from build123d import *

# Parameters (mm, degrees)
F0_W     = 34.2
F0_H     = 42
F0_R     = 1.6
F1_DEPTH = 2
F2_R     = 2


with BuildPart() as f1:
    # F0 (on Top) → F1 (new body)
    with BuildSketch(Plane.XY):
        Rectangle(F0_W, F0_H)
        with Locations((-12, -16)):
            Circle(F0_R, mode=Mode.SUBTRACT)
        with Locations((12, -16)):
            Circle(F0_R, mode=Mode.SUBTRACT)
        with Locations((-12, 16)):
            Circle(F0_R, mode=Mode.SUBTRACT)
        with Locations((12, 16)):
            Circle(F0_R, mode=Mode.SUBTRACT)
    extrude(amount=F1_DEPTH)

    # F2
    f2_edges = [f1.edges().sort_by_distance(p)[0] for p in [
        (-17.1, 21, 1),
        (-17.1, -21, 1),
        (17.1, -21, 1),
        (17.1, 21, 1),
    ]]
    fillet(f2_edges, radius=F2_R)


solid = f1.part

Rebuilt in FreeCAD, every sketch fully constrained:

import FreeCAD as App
import Part
import Sketcher
from FreeCAD import Vector


def edges_at(feature, points):
    """Names of the edges that pass closest to the given points."""
    edges = feature.Shape.Edges
    near = lambda p: min(range(len(edges)), key=lambda i: edges[i].distToShape(Part.Vertex(*p))[0])
    return sorted({f"Edge{near(p) + 1}" for p in points})


def add_polygon(sketch, points):
    """Adds a closed chain of lines whose ends are joined by coincident constraints."""
    first, n = sketch.GeometryCount, len(points)
    for a, b in zip(points, points[1:] + points[:1]):
        sketch.addGeometry(Part.LineSegment(App.Vector(*a, 0), App.Vector(*b, 0)), False)
    for i in range(n):
        sketch.addConstraint(Sketcher.Constraint("Coincident", first + i, 2, first + (i + 1) % n, 1))

doc = App.newDocument("Part")
body = doc.addObject("PartDesign::Body", "Body")

# Sketch on XY plane
sketch1 = body.newObject("Sketcher::SketchObject", "Sketch")
sketch1.AttachmentSupport = (doc.getObject("XY_Plane"), [""])
sketch1.MapMode = "FlatFace"
add_polygon(sketch1, [(-17.1, 21), (-17.1, -21), (17.1, -21), (17.1, 21)])  # lines 0-3
sketch1.addGeometry(Part.Circle(Vector(-12, -16, 0), Vector(0, 0, 1), 1.6), False)  # 4
sketch1.addGeometry(Part.Circle(Vector(12, -16, 0), Vector(0, 0, 1), 1.6), False)  # 5
sketch1.addGeometry(Part.Circle(Vector(-12, 16, 0), Vector(0, 0, 1), 1.6), False)  # 6
sketch1.addGeometry(Part.Circle(Vector(12, 16, 0), Vector(0, 0, 1), 1.6), False)  # 7
sketch1.addConstraint([
    Sketcher.Constraint("Vertical", 0),
    Sketcher.Constraint("Horizontal", 1),
    Sketcher.Constraint("Vertical", 2),
    Sketcher.Constraint("Horizontal", 3),
    Sketcher.Constraint("Equal", 4, 5),
    Sketcher.Constraint("Equal", 5, 6),
    Sketcher.Constraint("Equal", 6, 7),
    Sketcher.Constraint("Symmetric", 5, 3, 6, 3, -1, 1),
    Sketcher.Constraint("Symmetric", 4, 3, 7, 3, -1, 1),
    Sketcher.Constraint("Symmetric", 0, 2, 2, 2, -1, 1),
    Sketcher.Constraint("Symmetric", 4, 3, 5, 3, -2),
    Sketcher.Constraint("Diameter", 4, 3.2),
    Sketcher.Constraint("DistanceY", 0, 2, 0, 1, 42.0),
    Sketcher.Constraint("DistanceX", 1, 1, 1, 2, 34.2),
    Sketcher.Constraint("DistanceX", 4, 3, -1, 1, 12.0),
    Sketcher.Constraint("DistanceY", 4, 3, -1, 1, 16.0),
])
pad1 = body.newObject("PartDesign::Pad", "Pad")
pad1.Profile = sketch1
pad1.Length = 2
doc.recompute()

fillet = body.newObject("PartDesign::Fillet", "Fillet")
fillet.Base = (pad1, edges_at(pad1, [
    (-17.1, 21, 1),
    (-17.1, -21, 1),
    (17.1, -21, 1),
    (17.1, 21, 1),
]))
fillet.Radius = 2

doc.recompute()
